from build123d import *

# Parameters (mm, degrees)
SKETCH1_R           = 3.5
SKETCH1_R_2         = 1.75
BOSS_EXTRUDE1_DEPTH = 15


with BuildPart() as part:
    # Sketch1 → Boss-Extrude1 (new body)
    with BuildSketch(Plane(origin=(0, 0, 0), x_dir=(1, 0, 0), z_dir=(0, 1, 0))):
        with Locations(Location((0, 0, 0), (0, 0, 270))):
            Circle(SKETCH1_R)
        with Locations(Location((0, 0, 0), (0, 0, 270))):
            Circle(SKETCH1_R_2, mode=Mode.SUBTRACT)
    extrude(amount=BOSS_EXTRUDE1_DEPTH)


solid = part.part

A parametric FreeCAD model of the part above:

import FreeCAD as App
import Part
import Sketcher
Q = App.Units.Quantity

doc = App.newDocument("Part")
body = doc.addObject("PartDesign::Body", "Body")

# Sketch on XZ plane
sketch1 = body.newObject("Sketcher::SketchObject", "Sketch")
sketch1.AttachmentSupport = (doc.getObject("XZ_Plane"), [""])
sketch1.MapMode = "FlatFace"
sketch1.addGeometry([
    Part.Circle(App.Vector(0, 0, 0), App.Vector(0, 0, 1), 3.5),
    Part.Circle(App.Vector(0, 0, 0), App.Vector(0, 0, 1), 1.75),
], False)
sketch1.addConstraint([
    Sketcher.Constraint("Coincident", 0, 3, -1, 1),
    Sketcher.Constraint("Coincident", 1, 3, -1, 1),
    Sketcher.Constraint("Diameter", 0, Q("7 mm")),
    Sketcher.Constraint("Diameter", 1, Q("3.5 mm")),
])
pad1 = body.newObject("PartDesign::Pad", "Pad")
pad1.Profile = sketch1
pad1.Length = 15
pad1.Reversed = True

doc.recompute()
